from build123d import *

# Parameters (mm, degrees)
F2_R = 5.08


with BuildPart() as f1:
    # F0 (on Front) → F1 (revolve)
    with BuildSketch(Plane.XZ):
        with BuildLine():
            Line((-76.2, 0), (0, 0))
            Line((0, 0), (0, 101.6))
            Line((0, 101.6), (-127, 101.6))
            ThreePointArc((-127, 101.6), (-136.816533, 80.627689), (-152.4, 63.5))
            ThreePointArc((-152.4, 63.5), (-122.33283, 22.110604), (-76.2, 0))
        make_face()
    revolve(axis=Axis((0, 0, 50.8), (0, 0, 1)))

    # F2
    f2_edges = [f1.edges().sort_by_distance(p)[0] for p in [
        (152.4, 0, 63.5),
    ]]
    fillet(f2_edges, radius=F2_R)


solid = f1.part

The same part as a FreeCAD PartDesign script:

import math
import FreeCAD as App
import Part
import Sketcher
from FreeCAD import Vector
Q = App.Units.Quantity


def edges_at(feature, points):
    """Names of the edges that pass closest to the given points."""
    edges = feature.Shape.Edges
    near = lambda p: min(range(len(edges)), key=lambda i: edges[i].distToShape(Part.Vertex(*p))[0])
    return sorted({f"Edge{near(p) + 1}" for p in points})

doc = App.newDocument("Part")
params = doc.addObject("Spreadsheet::Sheet", "Params")
for row, (alias, value) in enumerate([
    ("sketch1_width", "3 in"),
    ("sketch1_width2", "5 in"),
    ("sketch1_height", "4 in"),
    ("revolution_angle", "360 deg"),
    ("fillet_radius", "0.2 in"),
], start=1):
    params.set(f"A{row}", alias)
    params.set(f"B{row}", "=" + value)
    params.setAlias(f"B{row}", alias)

body = doc.addObject("PartDesign::Body", "Body")

# Sketch on XZ plane
sketch1 = body.newObject("Sketcher::SketchObject", "Sketch")
sketch1.AttachmentSupport = (doc.getObject("XZ_Plane"), [""])
sketch1.MapMode = "FlatFace"
sketch1.addGeometry(Part.LineSegment(Vector(-76, 0, 0), Vector(0, 0, 0)), False)
sketch1.addGeometry(Part.LineSegment(Vector(0, 0, 0), Vector(0, 102, 0)), False)
sketch1.addGeometry(Part.LineSegment(Vector(0, 102, 0), Vector(-127, 102, 0)), False)
sketch1.addGeometry(Part.ArcOfCircle(Part.Circle(Vector(-201, 124, 0), Vector(0, 0, 1), 77), math.radians(-51), math.radians(-16)), False)
sketch1.addGeometry(Part.ArcOfCircle(Part.Circle(Vector(-56, 102, 0), Vector(0, 0, 1), 104), math.radians(-158), math.radians(-101)), False)
sketch1.addConstraint(Sketcher.Constraint("Coincident", 0, 2, 1, 1))
sketch1.addConstraint(Sketcher.Constraint("Coincident", 1, 2, 2, 1))
sketch1.addConstraint(Sketcher.Constraint("Coincident", 2, 2, 3, 2))
sketch1.addConstraint(Sketcher.Constraint("Coincident", 3, 1, 4, 1))
sketch1.addConstraint(Sketcher.Constraint("Coincident", 4, 2, 0, 1))
sketch1.addConstraint(Sketcher.Constraint("Horizontal", 0))
sketch1.addConstraint(Sketcher.Constraint("Vertical", 1))
sketch1.addConstraint(Sketcher.Constraint("Horizontal", 2))
sketch1.addConstraint(Sketcher.Constraint("Coincident", 0, 2, -1, 1))
sketch1.addConstraint(Sketcher.Constraint("DistanceX", 0, 1, 0, 2, Q("3 in")))
sketch1.addConstraint(Sketcher.Constraint("DistanceX", 2, 2, 2, 1, Q("5 in")))
sketch1.addConstraint(Sketcher.Constraint("DistanceY", 1, 1, 1, 2, Q("4 in")))
sketch1.addConstraint(Sketcher.Constraint("DistanceX", 3, 1, -1, 1, Q("6 in")))
sketch1.addConstraint(Sketcher.Constraint("DistanceY", -1, 1, 3, 1, Q("2.5 in")))
sketch1.addConstraint(Sketcher.Constraint("Radius", 3, 77.362978))
sketch1.addConstraint(Sketcher.Constraint("Radius", 4, 104.286868))
sketch1.setExpression("Constraints[9]", "Params.sketch1_width")
sketch1.setExpression("Constraints[10]", "Params.sketch1_width2")
sketch1.setExpression("Constraints[11]", "Params.sketch1_height")
revolution = body.newObject("PartDesign::Revolution", "Revolution")
revolution.Profile = sketch1
revolution.ReferenceAxis = (sketch1, ["V_Axis"])
revolution.setExpression("Angle", "Params.revolution_angle")
doc.recompute()

fillet = body.newObject("PartDesign::Fillet", "Fillet")
fillet.Base = (revolution, edges_at(revolution, [(152.4, 0, 63.5)]))
fillet.setExpression("Radius", "Params.fillet_radius")

doc.recompute()
